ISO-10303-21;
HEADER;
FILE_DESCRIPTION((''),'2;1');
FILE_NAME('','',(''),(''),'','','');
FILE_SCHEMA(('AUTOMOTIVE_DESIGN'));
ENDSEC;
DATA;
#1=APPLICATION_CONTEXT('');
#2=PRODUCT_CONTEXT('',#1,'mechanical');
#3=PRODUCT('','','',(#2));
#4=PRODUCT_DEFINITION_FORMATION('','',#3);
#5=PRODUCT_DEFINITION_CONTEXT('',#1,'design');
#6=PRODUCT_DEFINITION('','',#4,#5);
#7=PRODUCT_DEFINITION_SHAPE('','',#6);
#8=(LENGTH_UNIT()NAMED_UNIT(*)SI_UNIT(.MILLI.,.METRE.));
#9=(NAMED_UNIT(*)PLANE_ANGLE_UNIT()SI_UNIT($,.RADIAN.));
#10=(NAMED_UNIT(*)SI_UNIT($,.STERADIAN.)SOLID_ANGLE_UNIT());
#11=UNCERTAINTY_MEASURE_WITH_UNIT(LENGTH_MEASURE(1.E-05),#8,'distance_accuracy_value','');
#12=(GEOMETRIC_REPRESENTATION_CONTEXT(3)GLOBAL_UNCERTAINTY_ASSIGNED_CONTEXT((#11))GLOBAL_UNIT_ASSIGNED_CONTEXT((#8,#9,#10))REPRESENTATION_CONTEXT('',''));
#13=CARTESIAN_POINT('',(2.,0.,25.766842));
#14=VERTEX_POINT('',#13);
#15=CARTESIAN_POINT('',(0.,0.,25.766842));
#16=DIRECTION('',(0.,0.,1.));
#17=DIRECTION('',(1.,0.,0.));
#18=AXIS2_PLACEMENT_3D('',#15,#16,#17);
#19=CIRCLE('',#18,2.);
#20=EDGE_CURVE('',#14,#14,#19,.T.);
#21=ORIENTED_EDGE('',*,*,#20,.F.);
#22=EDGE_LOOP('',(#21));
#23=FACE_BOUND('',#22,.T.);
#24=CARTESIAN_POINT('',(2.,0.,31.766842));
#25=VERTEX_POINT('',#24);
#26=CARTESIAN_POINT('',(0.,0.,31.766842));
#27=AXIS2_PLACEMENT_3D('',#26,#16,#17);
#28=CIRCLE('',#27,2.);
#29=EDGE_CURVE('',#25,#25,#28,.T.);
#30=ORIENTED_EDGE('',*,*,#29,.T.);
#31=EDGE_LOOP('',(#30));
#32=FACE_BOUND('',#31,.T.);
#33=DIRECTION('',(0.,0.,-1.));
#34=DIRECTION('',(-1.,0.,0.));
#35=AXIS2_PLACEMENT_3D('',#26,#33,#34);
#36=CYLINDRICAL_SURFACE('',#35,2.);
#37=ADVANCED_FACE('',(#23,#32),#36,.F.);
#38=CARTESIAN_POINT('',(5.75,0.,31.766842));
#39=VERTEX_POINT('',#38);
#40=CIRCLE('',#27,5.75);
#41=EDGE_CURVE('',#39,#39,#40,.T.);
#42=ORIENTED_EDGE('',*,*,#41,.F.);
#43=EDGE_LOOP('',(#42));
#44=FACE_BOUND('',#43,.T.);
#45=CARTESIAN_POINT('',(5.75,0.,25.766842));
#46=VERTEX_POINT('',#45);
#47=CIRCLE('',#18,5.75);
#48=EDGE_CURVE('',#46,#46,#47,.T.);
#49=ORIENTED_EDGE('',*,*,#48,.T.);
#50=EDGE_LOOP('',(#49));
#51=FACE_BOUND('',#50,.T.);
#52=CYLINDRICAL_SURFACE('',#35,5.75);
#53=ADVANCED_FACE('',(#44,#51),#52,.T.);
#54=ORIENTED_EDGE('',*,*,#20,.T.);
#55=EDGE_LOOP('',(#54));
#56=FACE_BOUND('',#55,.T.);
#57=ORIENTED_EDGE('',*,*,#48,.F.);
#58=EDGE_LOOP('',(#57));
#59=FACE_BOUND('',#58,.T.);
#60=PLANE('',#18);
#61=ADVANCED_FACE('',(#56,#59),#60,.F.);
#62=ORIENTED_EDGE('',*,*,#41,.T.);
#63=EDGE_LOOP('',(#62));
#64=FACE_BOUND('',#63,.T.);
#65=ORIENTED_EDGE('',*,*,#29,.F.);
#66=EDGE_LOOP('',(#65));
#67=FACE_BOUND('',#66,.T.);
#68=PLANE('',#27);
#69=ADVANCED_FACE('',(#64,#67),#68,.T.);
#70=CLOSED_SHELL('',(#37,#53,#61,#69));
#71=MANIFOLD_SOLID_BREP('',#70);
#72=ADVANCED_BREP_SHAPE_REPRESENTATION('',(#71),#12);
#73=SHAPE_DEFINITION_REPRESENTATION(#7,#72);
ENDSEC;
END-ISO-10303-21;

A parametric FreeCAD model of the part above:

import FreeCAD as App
import Part
import Sketcher
from FreeCAD import Vector
Q = App.Units.Quantity

doc = App.newDocument("Part")
body = doc.addObject("PartDesign::Body", "Body")

# Sketch on XY plane
sketch1 = body.newObject("Sketcher::SketchObject", "Sketch")
sketch1.AttachmentSupport = (doc.getObject("XY_Plane"), [""])
sketch1.MapMode = "FlatFace"
sketch1.AttachmentOffset = App.Placement(Vector(0, 0, 25.766842), App.Rotation())
sketch1.addGeometry(Part.Circle(Vector(0, 0, 0), Vector(0, 0, 1), 5.8), False)
sketch1.addGeometry(Part.Circle(Vector(0, 0, 0), Vector(0, 0, 1), 2), False)
sketch1.addConstraint(Sketcher.Constraint("Coincident", 0, 3, -1, 1))
sketch1.addConstraint(Sketcher.Constraint("Coincident", 1, 3, -1, 1))
sketch1.addConstraint(Sketcher.Constraint("Diameter", 1, Q("4 mm")))
sketch1.addConstraint(Sketcher.Constraint("Diameter", 0, Q("11.5 mm")))
pad1 = body.newObject("PartDesign::Pad", "Pad")
pad1.Profile = sketch1
pad1.Length = 6

doc.recompute()
